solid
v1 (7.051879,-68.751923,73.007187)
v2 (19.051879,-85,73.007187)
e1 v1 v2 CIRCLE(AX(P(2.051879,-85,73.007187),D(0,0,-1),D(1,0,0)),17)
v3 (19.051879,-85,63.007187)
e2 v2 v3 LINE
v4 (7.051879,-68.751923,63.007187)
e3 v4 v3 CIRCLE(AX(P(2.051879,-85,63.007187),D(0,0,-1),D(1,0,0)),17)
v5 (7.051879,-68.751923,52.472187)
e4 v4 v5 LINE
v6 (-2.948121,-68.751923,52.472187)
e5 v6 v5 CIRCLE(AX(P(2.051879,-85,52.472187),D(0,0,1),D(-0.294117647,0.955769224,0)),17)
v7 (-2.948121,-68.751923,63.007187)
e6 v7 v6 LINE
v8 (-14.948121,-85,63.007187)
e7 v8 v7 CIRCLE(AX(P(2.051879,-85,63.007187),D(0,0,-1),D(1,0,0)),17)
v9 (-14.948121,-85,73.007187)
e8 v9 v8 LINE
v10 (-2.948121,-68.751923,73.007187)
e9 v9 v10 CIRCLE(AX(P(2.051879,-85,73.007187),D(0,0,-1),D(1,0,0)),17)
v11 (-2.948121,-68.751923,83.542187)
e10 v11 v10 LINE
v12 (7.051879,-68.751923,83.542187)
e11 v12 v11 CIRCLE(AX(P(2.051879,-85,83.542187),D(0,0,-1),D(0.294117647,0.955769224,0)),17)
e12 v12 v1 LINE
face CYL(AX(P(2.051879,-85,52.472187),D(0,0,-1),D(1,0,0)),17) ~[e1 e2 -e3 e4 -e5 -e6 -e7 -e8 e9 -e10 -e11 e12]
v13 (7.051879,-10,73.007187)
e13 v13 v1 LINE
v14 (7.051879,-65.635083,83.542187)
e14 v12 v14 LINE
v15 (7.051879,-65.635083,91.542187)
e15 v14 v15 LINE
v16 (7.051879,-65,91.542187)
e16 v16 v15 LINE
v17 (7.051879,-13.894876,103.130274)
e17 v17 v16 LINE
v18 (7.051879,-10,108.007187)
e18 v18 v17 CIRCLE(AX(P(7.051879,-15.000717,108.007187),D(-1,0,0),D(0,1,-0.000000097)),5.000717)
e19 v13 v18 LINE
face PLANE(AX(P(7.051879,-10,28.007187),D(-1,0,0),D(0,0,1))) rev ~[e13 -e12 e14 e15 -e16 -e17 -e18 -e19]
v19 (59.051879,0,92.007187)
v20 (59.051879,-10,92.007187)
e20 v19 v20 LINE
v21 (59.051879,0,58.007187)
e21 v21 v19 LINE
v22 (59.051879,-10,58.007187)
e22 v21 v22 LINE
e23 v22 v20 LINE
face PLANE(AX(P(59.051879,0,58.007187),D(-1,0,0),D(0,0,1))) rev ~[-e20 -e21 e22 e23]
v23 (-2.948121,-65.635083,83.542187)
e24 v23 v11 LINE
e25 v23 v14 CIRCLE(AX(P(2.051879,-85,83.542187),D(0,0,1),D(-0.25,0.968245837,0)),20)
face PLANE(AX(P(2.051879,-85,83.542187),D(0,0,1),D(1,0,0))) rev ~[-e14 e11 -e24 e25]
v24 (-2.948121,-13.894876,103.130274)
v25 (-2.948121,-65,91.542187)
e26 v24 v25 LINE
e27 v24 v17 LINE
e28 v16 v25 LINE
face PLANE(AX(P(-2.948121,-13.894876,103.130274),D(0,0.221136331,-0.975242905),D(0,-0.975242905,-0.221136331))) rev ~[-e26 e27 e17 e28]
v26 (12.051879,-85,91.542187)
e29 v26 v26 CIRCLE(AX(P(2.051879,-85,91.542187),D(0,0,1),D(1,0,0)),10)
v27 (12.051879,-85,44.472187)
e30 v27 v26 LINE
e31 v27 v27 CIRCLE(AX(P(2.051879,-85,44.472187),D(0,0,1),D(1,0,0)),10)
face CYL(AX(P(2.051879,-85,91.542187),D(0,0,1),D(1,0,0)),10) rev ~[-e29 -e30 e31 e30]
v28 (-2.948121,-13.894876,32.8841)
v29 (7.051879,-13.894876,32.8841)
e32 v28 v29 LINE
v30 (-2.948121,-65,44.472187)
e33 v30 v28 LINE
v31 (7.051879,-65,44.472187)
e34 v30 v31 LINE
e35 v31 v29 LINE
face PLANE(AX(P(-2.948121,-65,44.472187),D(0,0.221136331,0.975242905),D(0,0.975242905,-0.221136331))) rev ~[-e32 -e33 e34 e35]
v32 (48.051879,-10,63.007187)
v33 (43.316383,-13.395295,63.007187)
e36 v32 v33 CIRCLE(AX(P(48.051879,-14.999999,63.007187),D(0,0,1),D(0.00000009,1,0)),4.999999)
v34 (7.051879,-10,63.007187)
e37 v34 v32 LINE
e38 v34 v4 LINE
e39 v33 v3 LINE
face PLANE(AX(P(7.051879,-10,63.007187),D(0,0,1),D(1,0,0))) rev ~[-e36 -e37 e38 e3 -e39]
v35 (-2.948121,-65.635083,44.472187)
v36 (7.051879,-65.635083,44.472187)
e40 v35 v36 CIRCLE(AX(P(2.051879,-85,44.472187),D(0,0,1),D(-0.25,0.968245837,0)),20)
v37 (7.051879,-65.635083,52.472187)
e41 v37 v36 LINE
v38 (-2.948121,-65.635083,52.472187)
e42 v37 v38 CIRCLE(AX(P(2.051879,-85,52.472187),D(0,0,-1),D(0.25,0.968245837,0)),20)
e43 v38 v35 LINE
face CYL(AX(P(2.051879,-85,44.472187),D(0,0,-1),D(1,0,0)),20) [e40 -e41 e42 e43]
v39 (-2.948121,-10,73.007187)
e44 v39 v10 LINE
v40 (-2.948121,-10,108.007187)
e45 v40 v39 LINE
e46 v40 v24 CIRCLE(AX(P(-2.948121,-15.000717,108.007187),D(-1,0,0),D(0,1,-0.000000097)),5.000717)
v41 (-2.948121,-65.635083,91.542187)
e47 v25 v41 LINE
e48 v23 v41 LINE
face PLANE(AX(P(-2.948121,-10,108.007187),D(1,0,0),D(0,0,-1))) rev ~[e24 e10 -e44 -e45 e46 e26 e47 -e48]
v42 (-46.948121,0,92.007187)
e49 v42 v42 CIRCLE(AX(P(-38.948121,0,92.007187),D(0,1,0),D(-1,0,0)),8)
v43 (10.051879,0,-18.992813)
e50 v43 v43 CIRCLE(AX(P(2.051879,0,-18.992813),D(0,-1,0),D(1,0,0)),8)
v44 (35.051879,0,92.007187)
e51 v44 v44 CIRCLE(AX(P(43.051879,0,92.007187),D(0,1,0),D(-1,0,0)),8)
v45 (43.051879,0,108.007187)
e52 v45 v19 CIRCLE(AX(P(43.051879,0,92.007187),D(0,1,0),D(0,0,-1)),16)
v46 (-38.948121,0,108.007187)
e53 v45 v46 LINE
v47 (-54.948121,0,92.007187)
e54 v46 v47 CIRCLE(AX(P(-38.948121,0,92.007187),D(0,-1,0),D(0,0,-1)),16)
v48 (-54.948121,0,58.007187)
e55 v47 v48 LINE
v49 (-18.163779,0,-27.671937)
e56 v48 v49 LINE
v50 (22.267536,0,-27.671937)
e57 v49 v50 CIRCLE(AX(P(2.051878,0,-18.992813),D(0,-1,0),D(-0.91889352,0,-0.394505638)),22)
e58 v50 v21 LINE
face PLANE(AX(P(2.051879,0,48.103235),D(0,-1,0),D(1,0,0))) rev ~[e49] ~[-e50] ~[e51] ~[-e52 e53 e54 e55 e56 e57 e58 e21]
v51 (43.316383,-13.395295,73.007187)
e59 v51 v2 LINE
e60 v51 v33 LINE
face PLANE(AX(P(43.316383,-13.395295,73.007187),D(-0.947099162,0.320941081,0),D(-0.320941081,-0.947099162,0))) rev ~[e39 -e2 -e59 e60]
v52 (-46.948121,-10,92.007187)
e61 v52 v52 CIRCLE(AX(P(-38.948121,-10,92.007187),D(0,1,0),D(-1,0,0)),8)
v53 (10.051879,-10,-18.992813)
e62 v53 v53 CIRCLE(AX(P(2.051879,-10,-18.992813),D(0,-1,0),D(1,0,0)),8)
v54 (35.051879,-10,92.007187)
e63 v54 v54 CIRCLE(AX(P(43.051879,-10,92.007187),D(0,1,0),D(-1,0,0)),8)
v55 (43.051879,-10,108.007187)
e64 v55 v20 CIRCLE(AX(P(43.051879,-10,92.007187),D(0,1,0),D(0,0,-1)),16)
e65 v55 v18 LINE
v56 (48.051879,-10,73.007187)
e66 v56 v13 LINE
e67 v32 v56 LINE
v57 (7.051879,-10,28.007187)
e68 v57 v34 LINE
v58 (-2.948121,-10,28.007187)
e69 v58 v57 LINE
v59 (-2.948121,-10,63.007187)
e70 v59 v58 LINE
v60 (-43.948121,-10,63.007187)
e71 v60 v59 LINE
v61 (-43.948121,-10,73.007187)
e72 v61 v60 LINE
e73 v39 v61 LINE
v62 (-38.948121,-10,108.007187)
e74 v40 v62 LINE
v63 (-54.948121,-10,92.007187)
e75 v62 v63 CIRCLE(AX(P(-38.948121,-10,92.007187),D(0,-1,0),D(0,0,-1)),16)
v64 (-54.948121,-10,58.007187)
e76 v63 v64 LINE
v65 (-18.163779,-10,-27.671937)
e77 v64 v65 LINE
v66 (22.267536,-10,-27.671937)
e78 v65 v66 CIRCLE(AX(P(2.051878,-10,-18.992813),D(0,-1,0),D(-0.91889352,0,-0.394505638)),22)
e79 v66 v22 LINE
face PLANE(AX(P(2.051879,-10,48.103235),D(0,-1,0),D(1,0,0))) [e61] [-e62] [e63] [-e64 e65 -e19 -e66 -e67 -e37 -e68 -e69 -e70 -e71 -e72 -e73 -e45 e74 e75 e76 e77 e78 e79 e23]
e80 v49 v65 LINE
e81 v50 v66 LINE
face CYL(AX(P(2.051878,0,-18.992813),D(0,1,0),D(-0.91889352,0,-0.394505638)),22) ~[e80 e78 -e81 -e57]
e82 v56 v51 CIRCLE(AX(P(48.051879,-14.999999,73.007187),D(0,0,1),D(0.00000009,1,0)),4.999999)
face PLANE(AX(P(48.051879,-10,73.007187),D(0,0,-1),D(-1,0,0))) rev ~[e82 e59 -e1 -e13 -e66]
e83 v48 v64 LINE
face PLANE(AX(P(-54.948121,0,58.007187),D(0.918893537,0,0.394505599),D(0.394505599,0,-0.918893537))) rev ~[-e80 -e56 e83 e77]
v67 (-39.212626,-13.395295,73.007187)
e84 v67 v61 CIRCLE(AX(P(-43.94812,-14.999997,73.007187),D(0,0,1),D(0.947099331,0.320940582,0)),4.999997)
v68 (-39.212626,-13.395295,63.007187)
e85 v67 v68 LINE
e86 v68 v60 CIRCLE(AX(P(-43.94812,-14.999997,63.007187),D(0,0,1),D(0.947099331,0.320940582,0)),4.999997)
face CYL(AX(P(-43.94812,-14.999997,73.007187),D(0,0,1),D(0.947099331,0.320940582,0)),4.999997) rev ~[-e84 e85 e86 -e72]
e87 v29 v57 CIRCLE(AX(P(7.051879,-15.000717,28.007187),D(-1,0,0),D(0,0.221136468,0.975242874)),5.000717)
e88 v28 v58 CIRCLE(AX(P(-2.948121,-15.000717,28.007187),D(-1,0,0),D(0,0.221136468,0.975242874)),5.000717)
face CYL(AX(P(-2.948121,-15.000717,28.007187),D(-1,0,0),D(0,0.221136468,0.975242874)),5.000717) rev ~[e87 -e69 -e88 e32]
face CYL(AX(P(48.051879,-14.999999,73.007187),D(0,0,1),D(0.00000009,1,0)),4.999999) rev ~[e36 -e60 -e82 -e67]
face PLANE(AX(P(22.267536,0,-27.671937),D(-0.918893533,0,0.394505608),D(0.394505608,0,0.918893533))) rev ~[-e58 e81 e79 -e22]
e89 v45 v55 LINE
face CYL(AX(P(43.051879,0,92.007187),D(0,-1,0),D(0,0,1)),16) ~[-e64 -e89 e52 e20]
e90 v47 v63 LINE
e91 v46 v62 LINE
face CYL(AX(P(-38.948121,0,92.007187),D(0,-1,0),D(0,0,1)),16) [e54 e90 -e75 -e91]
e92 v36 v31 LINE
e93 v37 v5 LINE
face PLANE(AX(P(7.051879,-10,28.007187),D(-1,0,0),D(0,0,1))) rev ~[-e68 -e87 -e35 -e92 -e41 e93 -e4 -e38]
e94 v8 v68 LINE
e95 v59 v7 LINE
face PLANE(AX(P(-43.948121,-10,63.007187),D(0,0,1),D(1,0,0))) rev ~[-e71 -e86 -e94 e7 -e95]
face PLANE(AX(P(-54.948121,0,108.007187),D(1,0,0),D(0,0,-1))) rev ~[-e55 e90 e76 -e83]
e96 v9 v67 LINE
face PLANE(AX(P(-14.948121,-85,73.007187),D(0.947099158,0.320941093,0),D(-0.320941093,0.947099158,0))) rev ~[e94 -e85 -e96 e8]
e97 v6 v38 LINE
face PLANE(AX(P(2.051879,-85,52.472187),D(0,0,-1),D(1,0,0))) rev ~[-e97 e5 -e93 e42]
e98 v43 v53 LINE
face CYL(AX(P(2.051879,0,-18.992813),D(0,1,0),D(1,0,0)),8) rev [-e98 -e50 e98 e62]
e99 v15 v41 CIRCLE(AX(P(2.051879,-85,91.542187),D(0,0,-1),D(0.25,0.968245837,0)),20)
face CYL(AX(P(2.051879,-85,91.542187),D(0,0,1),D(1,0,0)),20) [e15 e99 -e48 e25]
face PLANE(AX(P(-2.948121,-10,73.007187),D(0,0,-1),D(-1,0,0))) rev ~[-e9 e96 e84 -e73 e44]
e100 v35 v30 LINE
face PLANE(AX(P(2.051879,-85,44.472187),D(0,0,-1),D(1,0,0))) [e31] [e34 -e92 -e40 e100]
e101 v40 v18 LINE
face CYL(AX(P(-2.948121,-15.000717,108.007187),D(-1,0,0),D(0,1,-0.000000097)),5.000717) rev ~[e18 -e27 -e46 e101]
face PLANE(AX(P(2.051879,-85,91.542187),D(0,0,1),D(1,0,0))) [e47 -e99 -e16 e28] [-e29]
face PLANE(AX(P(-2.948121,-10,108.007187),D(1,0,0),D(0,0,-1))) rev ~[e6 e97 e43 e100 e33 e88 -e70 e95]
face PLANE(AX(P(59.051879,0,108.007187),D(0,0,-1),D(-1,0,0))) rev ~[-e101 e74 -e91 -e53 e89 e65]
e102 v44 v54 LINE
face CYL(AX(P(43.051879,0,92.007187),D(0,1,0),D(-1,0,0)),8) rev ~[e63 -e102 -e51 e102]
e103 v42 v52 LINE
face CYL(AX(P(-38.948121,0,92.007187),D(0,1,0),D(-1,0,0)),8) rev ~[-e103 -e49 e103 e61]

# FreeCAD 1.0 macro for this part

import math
import FreeCAD as App
import Part
import Sketcher

V = App.Vector
Q = App.Units.Quantity


def edges_at(feature, points):
    """Names of the edges that pass closest to the given points."""
    edges = feature.Shape.Edges
    near = lambda p: min(range(len(edges)), key=lambda i: edges[i].distToShape(Part.Vertex(*p))[0])
    return sorted({f"Edge{near(p) + 1}" for p in points})


def add_polygon(sketch, points):
    """Adds a closed chain of lines whose ends are joined by coincident constraints."""
    first, n = sketch.GeometryCount, len(points)
    for a, b in zip(points, points[1:] + points[:1]):
        sketch.addGeometry(Part.LineSegment(App.Vector(*a, 0), App.Vector(*b, 0)), False)
    for i in range(n):
        sketch.addConstraint(Sketcher.Constraint("Coincident", first + i, 2, first + (i + 1) % n, 1))

doc = App.newDocument("Part")
body = doc.addObject("PartDesign::Body", "Body")

# Sketch on XZ plane
sketch1 = doc.addObject("Sketcher::SketchObject", "Sketch")
body.addObject(sketch1)
sketch1.AttachmentSupport = (doc.XZ_Plane, [""])
sketch1.MapMode = "FlatFace"
sketch1.addGeometry([
    Part.LineSegment(V(59, 108, 0), V(-55, 108, 0)),  # 0
    Part.LineSegment(V(-55, 108, 0), V(-55, 58, 0)),  # 1
    Part.LineSegment(V(-55, 58, 0), V(-18, -28, 0)),  # 2
    Part.ArcOfCircle(Part.Circle(V(2, -19, 0), V(0, 0, 1), 22), math.radians(-157), math.radians(-23)),  # 3
    Part.LineSegment(V(22, -28, 0), V(59, 58, 0)),  # 4
    Part.LineSegment(V(59, 58, 0), V(59, 108, 0)),  # 5
    Part.Circle(V(2, -19, 0), V(0, 0, 1), 8),  # 6
], False)
sketch1.addConstraint([
    Sketcher.Constraint("Coincident", 0, 2, 1, 1),
    Sketcher.Constraint("Coincident", 1, 2, 2, 1),
    Sketcher.Constraint("Tangent", 2, 2, 3, 1),
    Sketcher.Constraint("Tangent", 3, 2, 4, 1),
    Sketcher.Constraint("Coincident", 4, 2, 5, 1),
    Sketcher.Constraint("Coincident", 5, 2, 0, 1),
    Sketcher.Constraint("Horizontal", 0),
    Sketcher.Constraint("Vertical", 1),
    Sketcher.Constraint("Vertical", 5),
    Sketcher.Constraint("Coincident", 6, 3, 3, 3),
    Sketcher.Constraint("Horizontal", 2, 2, 3, 2),
    Sketcher.Constraint("Horizontal", 1, 2, 4, 2),
    Sketcher.Constraint("Diameter", 6, Q("16 mm")),
    Sketcher.Constraint("Radius", 3, Q("22 mm")),
    Sketcher.Constraint("DistanceX", 0, 2, 0, 1, Q("114 mm")),
    Sketcher.Constraint("DistanceY", 1, 2, 1, 1, Q("50 mm")),
    Sketcher.Constraint("DistanceY", 3, 3, 0, 2, Q("127 mm")),
    Sketcher.Constraint("DistanceX", -1, 1, 3, 3, Q("2.051878 mm")),
    Sketcher.Constraint("DistanceY", 3, 3, -1, 1, Q("18.992813 mm")),
])
pad1 = doc.addObject("PartDesign::Pad", "Pad")
body.addObject(pad1)
pad1.Profile = sketch1
pad1.Length = 10
doc.recompute()

fillet = doc.addObject("PartDesign::Fillet", "Fillet")
body.addObject(fillet)
fillet.Base = (pad1, edges_at(pad1, [(-54.948, -5, 108.007), (59.052, -5, 108.007)]))
fillet.Radius = 16

# Sketch on XZ plane
sketch2 = doc.addObject("Sketcher::SketchObject", "Sketch001")
body.addObject(sketch2)
sketch2.AttachmentSupport = (doc.XZ_Plane, [""])
sketch2.MapMode = "FlatFace"
sketch2.addGeometry([
    Part.Circle(V(43, 92, 0), V(0, 0, 1), 8),
    Part.Circle(V(-39, 92, 0), V(0, 0, 1), 8),
], False)
sketch2.addConstraint([
    Sketcher.Constraint("Equal", 0, 1),
    Sketcher.Constraint("Horizontal", 0, 3, 1, 3),
    Sketcher.Constraint("Diameter", 0, Q("16 mm")),
    Sketcher.Constraint("DistanceX", 1, 3, 0, 3, Q("82 mm")),
    Sketcher.Constraint("DistanceX", -1, 1, 0, 3, Q("43.051879 mm")),
    Sketcher.Constraint("DistanceY", -1, 1, 0, 3, Q("92.007187 mm")),
])
pocket1 = doc.addObject("PartDesign::Pocket", "Pocket")
body.addObject(pocket1)
pocket1.Profile = sketch2
pocket1.Type = "ThroughAll"
pocket1.Reversed = True

# Sketch on XZ plane
sketch3 = doc.addObject("Sketcher::SketchObject", "Sketch002")
body.addObject(sketch3)
sketch3.AttachmentSupport = (doc.XZ_Plane, [""])
sketch3.MapMode = "FlatFace"
sketch3.AttachmentOffset = App.Placement(V(0, 0, 10), App.Rotation())
add_polygon(sketch3, [(7, 108), (-3, 108), (-3, 28), (7, 28)])  # lines 0-3
sketch3.addConstraint([
    Sketcher.Constraint("Horizontal", 0),
    Sketcher.Constraint("Vertical", 1),
    Sketcher.Constraint("Horizontal", 2),
    Sketcher.Constraint("Vertical", 3),
    Sketcher.Constraint("DistanceX", 0, 2, 0, 1, Q("10 mm")),
    Sketcher.Constraint("DistanceY", 1, 2, 1, 1, Q("80 mm")),
    Sketcher.Constraint("DistanceX", 0, 2, -1, 1, Q("2.948121 mm")),
    Sketcher.Constraint("DistanceY", -1, 1, 0, 2, Q("108.007187 mm")),
])
pad2 = doc.addObject("PartDesign::Pad", "Pad001")
body.addObject(pad2)
pad2.Profile = sketch3
pad2.Length = 75

# Sketch on YZ plane
sketch4 = doc.addObject("Sketcher::SketchObject", "Sketch003")
body.addObject(sketch4)
sketch4.AttachmentSupport = (doc.YZ_Plane, [""])
sketch4.MapMode = "FlatFace"
sketch4.AttachmentOffset = App.Placement(V(0, 0, -2.948121), App.Rotation())
sketch4.addGeometry([
    Part.LineSegment(V(-85, 108, 0), V(-10, 108, 0)),  # 0
    Part.ArcOfCircle(Part.Circle(V(-15, 108, 0), V(0, 0, 1), 5), math.radians(-77), math.radians(0)),  # 1
    Part.LineSegment(V(-14, 103, 0), V(-65, 92, 0)),  # 2
    Part.LineSegment(V(-65, 92, 0), V(-85, 92, 0)),  # 3
    Part.LineSegment(V(-85, 92, 0), V(-85, 108, 0)),  # 4
    Part.ArcOfCircle(Part.Circle(V(-15, 28, 0), V(0, 0, 1), 5), math.radians(0), math.radians(77)),  # 5
    Part.LineSegment(V(-10, 28, 0), V(-85, 28, 0)),  # 6
    Part.LineSegment(V(-85, 28, 0), V(-85, 44, 0)),  # 7
    Part.LineSegment(V(-85, 44, 0), V(-65, 44, 0)),  # 8
    Part.LineSegment(V(-65, 44, 0), V(-14, 33, 0)),  # 9
], False)
sketch4.addConstraint([
    Sketcher.Constraint("Coincident", 0, 2, 1, 2),
    Sketcher.Constraint("Tangent", 1, 1, 2, 1),
    Sketcher.Constraint("Coincident", 2, 2, 3, 1),
    Sketcher.Constraint("Coincident", 3, 2, 4, 1),
    Sketcher.Constraint("Coincident", 4, 2, 0, 1),
    Sketcher.Constraint("Coincident", 5, 1, 6, 1),
    Sketcher.Constraint("Coincident", 6, 2, 7, 1),
    Sketcher.Constraint("Coincident", 7, 2, 8, 1),
    Sketcher.Constraint("Coincident", 8, 2, 9, 1),
    Sketcher.Constraint("Tangent", 9, 2, 5, 2),
    Sketcher.Constraint("Horizontal", 0),
    Sketcher.Constraint("Horizontal", 3),
    Sketcher.Constraint("Vertical", 4),
    Sketcher.Constraint("Horizontal", 6),
    Sketcher.Constraint("Vertical", 7),
    Sketcher.Constraint("Horizontal", 8),
    Sketcher.Constraint("Equal", 1, 5),
    Sketcher.Constraint("Horizontal", 1, 3, 0, 2),
    Sketcher.Constraint("Vertical", 1, 3, 5, 3),
    Sketcher.Constraint("Vertical", 4, 2, 6, 2),
    Sketcher.Constraint("Vertical", 2, 2, 8, 2),
    Sketcher.Constraint("Vertical", 1, 1, 9, 2),
    Sketcher.Constraint("Equal", 4, 7),
    Sketcher.Constraint("DistanceX", 0, 1, 0, 2, Q("75 mm")),
    Sketcher.Constraint("DistanceX", 3, 2, 3, 1, Q("20 mm")),
    Sketcher.Constraint("DistanceX", 0, 2, -1, 1, Q("10 mm")),
    Sketcher.Constraint("DistanceY", 5, 3, 1, 3, Q("80.000001 mm")),
    Sketcher.Constraint("DistanceY", 4, 1, 4, 2, Q("16.465 mm")),
    Sketcher.Constraint("Radius", 1, Q("5.000717 mm")),
    Sketcher.Constraint("DistanceY", -1, 1, 9, 2, Q("32.8841 mm")),
])
pocket2 = doc.addObject("PartDesign::Pocket", "Pocket001")
body.addObject(pocket2)
pocket2.Profile = sketch4
pocket2.Type = "ThroughAll"
pocket2.Reversed = True

# Sketch on XY plane
sketch5 = doc.addObject("Sketcher::SketchObject", "Sketch004")
body.addObject(sketch5)
sketch5.AttachmentSupport = (doc.XY_Plane, [""])
sketch5.MapMode = "FlatFace"
sketch5.AttachmentOffset = App.Placement(V(0, 0, 91.542187), App.Rotation())
sketch5.addGeometry(Part.Circle(V(2, -85, 0), V(0, 0, 1), 20), False)
sketch5.addConstraint([
    Sketcher.Constraint("Diameter", 0, Q("40 mm")),
    Sketcher.Constraint("DistanceY", 0, 3, -1, 1, Q("85 mm")),
    Sketcher.Constraint("DistanceX", -1, 1, 0, 3, Q("2.051879 mm")),
])
pad3 = doc.addObject("PartDesign::Pad", "Pad002")
body.addObject(pad3)
pad3.Profile = sketch5
pad3.Length = 8
pad3.Reversed = True

# Sketch on XY plane
sketch6 = doc.addObject("Sketcher::SketchObject", "Sketch005")
body.addObject(sketch6)
sketch6.AttachmentSupport = (doc.XY_Plane, [""])
sketch6.MapMode = "FlatFace"
sketch6.AttachmentOffset = App.Placement(V(0, 0, 44.472187), App.Rotation())
sketch6.addGeometry(Part.Circle(V(2, -85, 0), V(0, 0, 1), 20), False)
sketch6.addConstraint([
    Sketcher.Constraint("Diameter", 0, Q("40 mm")),
    Sketcher.Constraint("DistanceY", 0, 3, -1, 1, Q("85 mm")),
    Sketcher.Constraint("DistanceX", -1, 1, 0, 3, Q("2.051879 mm")),
])
pad4 = doc.addObject("PartDesign::Pad", "Pad003")
body.addObject(pad4)
pad4.Profile = sketch6
pad4.Length = 8

# Sketch on XY plane
sketch7 = doc.addObject("Sketcher::SketchObject", "Sketch006")
body.addObject(sketch7)
sketch7.AttachmentSupport = (doc.XY_Plane, [""])
sketch7.MapMode = "FlatFace"
sketch7.AttachmentOffset = App.Placement(V(0, 0, 52.472187), App.Rotation())
sketch7.addGeometry(Part.Circle(V(2, -85, 0), V(0, 0, 1), 17), False)
sketch7.addConstraint([
    Sketcher.Constraint("Diameter", 0, Q("34 mm")),
    Sketcher.Constraint("DistanceY", 0, 3, -1, 1, Q("85 mm")),
    Sketcher.Constraint("DistanceX", -1, 1, 0, 3, Q("2.051879 mm")),
])
pad5 = doc.addObject("PartDesign::Pad", "Pad004")
body.addObject(pad5)
pad5.Profile = sketch7
pad5.Length = 38

# Sketch on XY plane
sketch8 = doc.addObject("Sketcher::SketchObject", "Sketch007")
body.addObject(sketch8)
sketch8.AttachmentSupport = (doc.XY_Plane, [""])
sketch8.MapMode = "FlatFace"
sketch8.AttachmentOffset = App.Placement(V(0, 0, 73.007187), App.Rotation())
sketch8.addGeometry(Part.Circle(V(2, -85, 0), V(0, 0, 1), 10), False)
sketch8.addConstraint([
    Sketcher.Constraint("Diameter", 0, Q("20 mm")),
    Sketcher.Constraint("DistanceY", 0, 3, -1, 1, Q("85 mm")),
    Sketcher.Constraint("DistanceX", -1, 1, 0, 3, Q("2.051879 mm")),
])
pocket3 = doc.addObject("PartDesign::Pocket", "Pocket002")
body.addObject(pocket3)
pocket3.Profile = sketch8
pocket3.Type = "ThroughAll"

# Sketch on XZ plane
sketch9 = doc.addObject("Sketcher::SketchObject", "Sketch008")
body.addObject(sketch9)
sketch9.AttachmentSupport = (doc.XZ_Plane, [""])
sketch9.MapMode = "FlatFace"
sketch9.AttachmentOffset = App.Placement(V(0, 0, 10), App.Rotation())
add_polygon(sketch9, [(-44, 73), (-44, 63), (-3, 63), (-3, 73)])  # lines 0-3
add_polygon(sketch9, [(48, 63), (48, 73), (7, 73), (7, 63)])  # lines 4-7
sketch9.addConstraint([
    Sketcher.Constraint("Vertical", 0),
    Sketcher.Constraint("Horizontal", 1),
    Sketcher.Constraint("Vertical", 2),
    Sketcher.Constraint("Horizontal", 3),
    Sketcher.Constraint("Vertical", 4),
    Sketcher.Constraint("Horizontal", 5),
    Sketcher.Constraint("Vertical", 6),
    Sketcher.Constraint("Horizontal", 7),
    Sketcher.Constraint("Horizontal", 3, 2, 4, 2),
    Sketcher.Constraint("Horizontal", 1, 2, 6, 2),
    Sketcher.Constraint("Equal", 3, 5),
    Sketcher.Constraint("DistanceX", 1, 1, 1, 2, Q("41 mm")),
    Sketcher.Constraint("DistanceY", 0, 2, 0, 1, Q("10 mm")),
    Sketcher.Constraint("DistanceX", 2, 2, 4, 2, Q("51 mm")),
    Sketcher.Constraint("DistanceX", 0, 2, -1, 1, Q("43.948121 mm")),
    Sketcher.Constraint("DistanceY", -1, 1, 0, 2, Q("63.007187 mm")),
])
pad6 = doc.addObject("PartDesign::Pad", "Pad005")
body.addObject(pad6)
pad6.Profile = sketch9
pad6.Length = 75

# Sketch on XY plane
sketch10 = doc.addObject("Sketcher::SketchObject", "Sketch009")
body.addObject(sketch10)
sketch10.AttachmentSupport = (doc.XY_Plane, [""])
sketch10.MapMode = "FlatFace"
sketch10.AttachmentOffset = App.Placement(V(0, 0, 91.542187), App.Rotation())
sketch10.addGeometry(Part.Circle(V(2, -85, 0), V(0, 0, 1), 10), False)
sketch10.addConstraint([
    Sketcher.Constraint("Diameter", 0, Q("20 mm")),
    Sketcher.Constraint("DistanceY", 0, 3, -1, 1, Q("85 mm")),
    Sketcher.Constraint("DistanceX", -1, 1, 0, 3, Q("2.051879 mm")),
])
pocket4 = doc.addObject("PartDesign::Pocket", "Pocket003")
body.addObject(pocket4)
pocket4.Profile = sketch10
pocket4.Type = "ThroughAll"

# Sketch on XY plane
sketch11 = doc.addObject("Sketcher::SketchObject", "Sketch010")
body.addObject(sketch11)
sketch11.AttachmentSupport = (doc.XY_Plane, [""])
sketch11.MapMode = "FlatFace"
sketch11.AttachmentOffset = App.Placement(V(0, 0, 73.007187), App.Rotation())
sketch11.addGeometry([
    Part.LineSegment(V(48.1, -85, 0), V(48.1, -10, 0)),  # 0
    Part.ArcOfCircle(Part.Circle(V(48.1, -15, 0), V(0, 0, 1), 5), math.radians(90), math.radians(161)),  # 1
    Part.LineSegment(V(43.3, -13.4, 0), V(19.1, -85, 0)),  # 2
    Part.LineSegment(V(19.1, -85, 0), V(48.1, -85, 0)),  # 3
    Part.LineSegment(V(-43.9, -85, 0), V(-14.9, -85, 0)),  # 4
    Part.LineSegment(V(-14.9, -85, 0), V(-39.2, -13.4, 0)),  # 5
    Part.ArcOfCircle(Part.Circle(V(-43.9, -15, 0), V(0, 0, 1), 5), math.radians(19), math.radians(90)),  # 6
    Part.LineSegment(V(-43.9, -10, 0), V(-43.9, -85, 0)),  # 7
], False)
sketch11.addConstraint([
    Sketcher.Constraint("Coincident", 0, 2, 1, 1),
    Sketcher.Constraint("Tangent", 1, 2, 2, 1),
    Sketcher.Constraint("Coincident", 2, 2, 3, 1),
    Sketcher.Constraint("Coincident", 3, 2, 0, 1),
    Sketcher.Constraint("Coincident", 4, 2, 5, 1),
    Sketcher.Constraint("Tangent", 5, 2, 6, 1),
    Sketcher.Constraint("Coincident", 6, 2, 7, 1),
    Sketcher.Constraint("Coincident", 7, 2, 4, 1),
    Sketcher.Constraint("Vertical", 0),
    Sketcher.Constraint("Horizontal", 3),
    Sketcher.Constraint("Horizontal", 4),
    Sketcher.Constraint("Vertical", 7),
    Sketcher.Constraint("Horizontal", 3, 2, 4, 2),
    Sketcher.Constraint("Horizontal", 1, 2, 5, 2),
    Sketcher.Constraint("Horizontal", 0, 2, 6, 2),
    Sketcher.Constraint("Vertical", 1, 3, 0, 2),
    Sketcher.Constraint("Equal", 3, 4),
    Sketcher.Constraint("Equal", 2, 5),
    Sketcher.Constraint("Radius", 1, Q("4.999999 mm")),
    Sketcher.Constraint("DistanceX", 3, 1, 3, 2, Q("29 mm")),
    Sketcher.Constraint("DistanceY", 0, 1, 0, 2, Q("75 mm")),
    Sketcher.Constraint("DistanceY", 1, 3, -1, 1, Q("14.999999 mm")),
    Sketcher.Constraint("DistanceX", 6, 3, 1, 3, Q("91.999998 mm")),
    Sketcher.Constraint("DistanceX", -1, 1, 1, 3, Q("48.051879 mm")),
])
pocket5 = doc.addObject("PartDesign::Pocket", "Pocket004")
body.addObject(pocket5)
pocket5.Profile = sketch11
pocket5.Length = 10

doc.recompute()
